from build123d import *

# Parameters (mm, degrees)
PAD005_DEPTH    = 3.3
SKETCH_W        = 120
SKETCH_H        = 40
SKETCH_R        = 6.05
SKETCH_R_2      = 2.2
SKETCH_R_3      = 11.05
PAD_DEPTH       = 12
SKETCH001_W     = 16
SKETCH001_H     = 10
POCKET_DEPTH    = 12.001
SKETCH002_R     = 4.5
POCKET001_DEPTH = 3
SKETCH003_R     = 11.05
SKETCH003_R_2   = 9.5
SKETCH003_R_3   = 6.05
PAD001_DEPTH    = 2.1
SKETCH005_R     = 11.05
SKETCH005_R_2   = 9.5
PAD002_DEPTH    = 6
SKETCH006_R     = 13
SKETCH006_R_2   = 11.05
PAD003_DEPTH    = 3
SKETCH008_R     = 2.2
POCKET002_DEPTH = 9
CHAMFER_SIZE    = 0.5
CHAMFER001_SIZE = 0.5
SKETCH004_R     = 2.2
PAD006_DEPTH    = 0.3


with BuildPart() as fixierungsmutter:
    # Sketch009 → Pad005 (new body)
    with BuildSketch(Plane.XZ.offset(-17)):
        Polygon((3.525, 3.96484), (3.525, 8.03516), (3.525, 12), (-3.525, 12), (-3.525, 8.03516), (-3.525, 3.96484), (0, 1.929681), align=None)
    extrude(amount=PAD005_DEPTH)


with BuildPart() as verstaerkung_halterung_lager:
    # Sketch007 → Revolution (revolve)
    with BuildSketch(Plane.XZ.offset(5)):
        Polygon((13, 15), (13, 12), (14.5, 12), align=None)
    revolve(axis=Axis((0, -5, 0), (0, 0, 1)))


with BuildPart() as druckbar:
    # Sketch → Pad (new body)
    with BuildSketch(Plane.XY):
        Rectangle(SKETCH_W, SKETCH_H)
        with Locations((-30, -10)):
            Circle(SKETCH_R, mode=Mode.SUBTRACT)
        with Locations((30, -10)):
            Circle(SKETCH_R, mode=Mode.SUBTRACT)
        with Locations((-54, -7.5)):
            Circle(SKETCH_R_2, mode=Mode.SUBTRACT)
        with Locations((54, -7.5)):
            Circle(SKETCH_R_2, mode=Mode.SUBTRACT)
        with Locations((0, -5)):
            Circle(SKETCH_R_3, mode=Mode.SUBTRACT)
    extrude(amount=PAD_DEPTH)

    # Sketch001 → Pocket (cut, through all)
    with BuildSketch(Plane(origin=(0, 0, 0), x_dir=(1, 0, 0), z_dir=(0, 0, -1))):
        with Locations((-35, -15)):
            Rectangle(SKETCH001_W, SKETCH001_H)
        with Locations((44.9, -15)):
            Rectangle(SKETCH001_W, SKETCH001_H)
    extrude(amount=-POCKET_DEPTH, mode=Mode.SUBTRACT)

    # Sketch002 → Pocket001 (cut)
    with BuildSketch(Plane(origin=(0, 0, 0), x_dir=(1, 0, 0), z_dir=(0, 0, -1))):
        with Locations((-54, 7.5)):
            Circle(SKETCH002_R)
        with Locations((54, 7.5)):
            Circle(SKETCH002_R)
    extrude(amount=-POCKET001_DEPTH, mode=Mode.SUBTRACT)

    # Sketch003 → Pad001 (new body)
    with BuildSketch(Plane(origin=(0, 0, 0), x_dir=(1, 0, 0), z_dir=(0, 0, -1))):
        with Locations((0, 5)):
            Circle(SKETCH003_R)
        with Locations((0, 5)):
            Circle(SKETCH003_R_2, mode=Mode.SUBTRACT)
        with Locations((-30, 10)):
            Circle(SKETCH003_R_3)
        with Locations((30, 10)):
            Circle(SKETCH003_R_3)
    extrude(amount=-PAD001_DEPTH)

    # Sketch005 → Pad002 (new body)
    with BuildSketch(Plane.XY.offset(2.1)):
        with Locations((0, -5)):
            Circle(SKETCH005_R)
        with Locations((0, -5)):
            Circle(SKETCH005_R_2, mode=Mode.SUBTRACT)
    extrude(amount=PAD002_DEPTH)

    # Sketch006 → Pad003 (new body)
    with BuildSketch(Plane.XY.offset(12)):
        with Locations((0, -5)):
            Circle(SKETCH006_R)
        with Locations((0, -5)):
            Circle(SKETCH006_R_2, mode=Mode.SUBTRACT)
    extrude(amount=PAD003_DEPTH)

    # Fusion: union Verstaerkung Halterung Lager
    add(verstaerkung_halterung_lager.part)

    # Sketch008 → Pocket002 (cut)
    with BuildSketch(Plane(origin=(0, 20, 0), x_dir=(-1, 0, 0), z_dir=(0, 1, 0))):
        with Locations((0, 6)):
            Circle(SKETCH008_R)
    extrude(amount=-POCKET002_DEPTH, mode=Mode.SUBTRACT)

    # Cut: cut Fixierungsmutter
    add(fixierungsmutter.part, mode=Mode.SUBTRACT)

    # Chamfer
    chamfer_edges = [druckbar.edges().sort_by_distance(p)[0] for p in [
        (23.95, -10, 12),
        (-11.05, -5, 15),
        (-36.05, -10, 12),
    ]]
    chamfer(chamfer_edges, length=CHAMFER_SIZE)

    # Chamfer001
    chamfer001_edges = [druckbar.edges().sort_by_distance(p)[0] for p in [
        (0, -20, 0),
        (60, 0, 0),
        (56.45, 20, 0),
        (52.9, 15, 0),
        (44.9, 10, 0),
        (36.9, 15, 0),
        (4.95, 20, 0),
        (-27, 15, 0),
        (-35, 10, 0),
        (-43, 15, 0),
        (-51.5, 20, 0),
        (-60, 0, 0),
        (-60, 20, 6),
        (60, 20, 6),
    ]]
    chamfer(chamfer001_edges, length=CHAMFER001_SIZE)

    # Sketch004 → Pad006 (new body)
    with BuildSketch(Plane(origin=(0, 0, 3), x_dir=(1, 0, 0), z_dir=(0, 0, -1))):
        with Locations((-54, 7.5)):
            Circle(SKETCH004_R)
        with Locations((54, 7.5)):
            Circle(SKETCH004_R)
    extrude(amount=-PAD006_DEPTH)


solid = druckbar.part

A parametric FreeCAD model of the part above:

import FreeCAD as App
import Part
import Sketcher

V = App.Vector
Q = App.Units.Quantity


def edges_at(feature, points):
    """Names of the edges that pass closest to the given points."""
    edges = feature.Shape.Edges
    near = lambda p: min(range(len(edges)), key=lambda i: edges[i].distToShape(Part.Vertex(*p))[0])
    return sorted({f"Edge{near(p) + 1}" for p in points})

doc = App.newDocument("Part")
params = doc.addObject("Spreadsheet::Sheet", "Params")
for row, (alias, value) in enumerate([
    ("sketch1_width", "7.05 mm"),
    ("pad1_length", "3.3 mm"),
    ("sketch2_height", "3 mm"),
    ("sketch2_width", "1.5 mm"),
    ("revolution_angle", "360 deg"),
    ("sketch3_diameter", "12.1 mm"),
    ("sketch3_diameter2", "4.4 mm"),
    ("sketch3_diameter3", "22.1 mm"),
    ("sketch3_width", "120 mm"),
    ("sketch3_height", "40 mm"),
    ("pad2_length", "12 mm"),
    ("sketch4_width", "16 mm"),
    ("sketch4_height", "10 mm"),
    ("sketch5_diameter", "9 mm"),
    ("pocket2_length", "3 mm"),
    ("sketch6_diameter", "19 mm"),
    ("sketch6_diameter2", "22.1 mm"),
    ("sketch6_diameter3", "12.1 mm"),
    ("pad3_length", "2.1 mm"),
    ("sketch7_diameter", "19 mm"),
    ("sketch7_diameter2", "22.1 mm"),
    ("pad4_length", "6 mm"),
    ("sketch8_diameter", "26 mm"),
    ("sketch8_diameter2", "22.1 mm"),
    ("pad5_length", "3 mm"),
    ("sketch9_diameter", "4.4 mm"),
    ("pocket3_length", "9 mm"),
    ("chamfer_size", "0.5 mm"),
    ("chamfer2_size", "0.5 mm"),
    ("sketch10_diameter", "4.4 mm"),
    ("pad6_length", "0.3 mm"),
], start=1):
    params.set(f"A{row}", alias)
    params.set(f"B{row}", "=" + value)
    params.setAlias(f"B{row}", alias)

body = doc.addObject("PartDesign::Body", "Body")

# Sketch on XZ plane
sketch1 = body.newObject("Sketcher::SketchObject", "Sketch")
sketch1.AttachmentSupport = (doc.getObject("XZ_Plane"), [""])
sketch1.MapMode = "FlatFace"
sketch1.AttachmentOffset = App.Placement(V(0, 0, -17), App.Rotation())
sketch1.addGeometry([
    Part.LineSegment(V(3.525, 3.96484, 0), V(3.525, 12, 0)),  # 0
    Part.LineSegment(V(3.525, 12, 0), V(-3.525, 12, 0)),  # 1
    Part.LineSegment(V(-3.525, 12, 0), V(-3.525, 3.96484, 0)),  # 2
    Part.LineSegment(V(-3.525, 3.96484, 0), V(0, 1.929681, 0)),  # 3
    Part.LineSegment(V(0, 1.929681, 0), V(3.525, 3.96484, 0)),  # 4
], False)
sketch1.addConstraint([
    Sketcher.Constraint("Coincident", 0, 2, 1, 1),
    Sketcher.Constraint("Coincident", 1, 2, 2, 1),
    Sketcher.Constraint("Coincident", 2, 2, 3, 1),
    Sketcher.Constraint("Coincident", 3, 2, 4, 1),
    Sketcher.Constraint("Coincident", 4, 2, 0, 1),
    Sketcher.Constraint("Vertical", 0),
    Sketcher.Constraint("Horizontal", 1),
    Sketcher.Constraint("Vertical", 2),
    Sketcher.Constraint("Symmetric", 2, 2, 4, 2, -2),
    Sketcher.Constraint("PointOnObject", 3, 2, -2),
    Sketcher.Constraint("Angle", 3, Q("-29.999991 deg")),
    Sketcher.Constraint("DistanceY", -1, 1, 0, 2, 12.0),
    Sketcher.Constraint("DistanceX", 1, 2, 1, 1, 7.05),
    Sketcher.Constraint("DistanceY", 0, 1, 0, 2, 8.03516),
])
sketch1.setExpression("Constraints[12]", "Params.sketch1_width")
pad1 = body.newObject("PartDesign::Pad", "Pad")
pad1.Profile = sketch1
pad1.setExpression("Length", "Params.pad1_length")
body2 = doc.addObject("PartDesign::Body", "Body001")

# Sketch on XZ plane
sketch2 = body2.newObject("Sketcher::SketchObject", "Sketch001")
sketch2.AttachmentSupport = (doc.getObject("XZ_Plane001"), [""])
sketch2.MapMode = "FlatFace"
sketch2.AttachmentOffset = App.Placement(V(0, 0, 5), App.Rotation())
sketch2.addGeometry([
    Part.LineSegment(V(13, 15, 0), V(13, 12, 0)),
    Part.LineSegment(V(13, 12, 0), V(14.5, 12, 0)),
    Part.LineSegment(V(14.5, 12, 0), V(13, 15, 0)),
], False)
sketch2.addConstraint([
    Sketcher.Constraint("Coincident", 0, 2, 1, 1),
    Sketcher.Constraint("Coincident", 1, 2, 2, 1),
    Sketcher.Constraint("Coincident", 2, 2, 0, 1),
    Sketcher.Constraint("Vertical", 0),
    Sketcher.Constraint("Horizontal", 1),
    Sketcher.Constraint("DistanceY", 0, 2, 0, 1, 3.0),
    Sketcher.Constraint("DistanceX", 1, 1, 1, 2, 1.5),
    Sketcher.Constraint("DistanceX", -1, 1, 0, 2, 13.0),
    Sketcher.Constraint("DistanceY", -1, 1, 0, 2, 12.0),
])
sketch2.setExpression("Constraints[5]", "Params.sketch2_height")
sketch2.setExpression("Constraints[6]", "Params.sketch2_width")
revolution = body2.newObject("PartDesign::Revolution", "Revolution")
revolution.Profile = sketch2
revolution.ReferenceAxis = (sketch2, ["V_Axis"])
revolution.setExpression("Angle", "Params.revolution_angle")
body3 = doc.addObject("PartDesign::Body", "Body002")

# Sketch on XY plane
sketch3 = body3.newObject("Sketcher::SketchObject", "Sketch002")
sketch3.AttachmentSupport = (doc.getObject("XY_Plane002"), [""])
sketch3.MapMode = "FlatFace"
sketch3.addGeometry([
    Part.LineSegment(V(-60, 20, 0), V(-60, -20, 0)),  # 0
    Part.LineSegment(V(-60, -20, 0), V(60, -20, 0)),  # 1
    Part.LineSegment(V(60, -20, 0), V(60, 20, 0)),  # 2
    Part.LineSegment(V(60, 20, 0), V(-60, 20, 0)),  # 3
    Part.Circle(V(-30, -10, 0), V(0, 0, 1), 6.05),  # 4
    Part.Circle(V(-54, -7.5, 0), V(0, 0, 1), 2.2),  # 5
    Part.Circle(V(30, -10, 0), V(0, 0, 1), 6.05),  # 6
    Part.Circle(V(54, -7.5, 0), V(0, 0, 1), 2.2),  # 7
    Part.Circle(V(0, -5, 0), V(0, 0, 1), 11.05),  # 8
], False)
sketch3.addConstraint([
    Sketcher.Constraint("Coincident", 0, 2, 1, 1),
    Sketcher.Constraint("Coincident", 1, 2, 2, 1),
    Sketcher.Constraint("Coincident", 2, 2, 3, 1),
    Sketcher.Constraint("Coincident", 3, 2, 0, 1),
    Sketcher.Constraint("Vertical", 0),
    Sketcher.Constraint("Horizontal", 1),
    Sketcher.Constraint("Vertical", 2),
    Sketcher.Constraint("Horizontal", 3),
    Sketcher.Constraint("Equal", 4, 6),
    Sketcher.Constraint("Equal", 5, 7),
    Sketcher.Constraint("Symmetric", 0, 2, 2, 2, -1, 1),
    Sketcher.Constraint("Symmetric", 4, 3, 6, 3, -2),
    Sketcher.Constraint("Symmetric", 5, 3, 7, 3, -2),
    Sketcher.Constraint("PointOnObject", 8, 3, -2),
    Sketcher.Constraint("Diameter", 4, 12.1),
    Sketcher.Constraint("Diameter", 5, 4.4),
    Sketcher.Constraint("Diameter", 8, 22.1),
    Sketcher.Constraint("DistanceX", 1, 1, 1, 2, 120.0),
    Sketcher.Constraint("DistanceY", 0, 2, 0, 1, 40.0),
    Sketcher.Constraint("DistanceX", 4, 3, -1, 1, 30.0),
    Sketcher.Constraint("DistanceY", 4, 3, -1, 1, 10.0),
    Sketcher.Constraint("DistanceX", 5, 3, -1, 1, 54.0),
    Sketcher.Constraint("DistanceY", 8, 3, -1, 1, 5.0),
    Sketcher.Constraint("DistanceY", 5, 3, -1, 1, 7.5),
])
sketch3.setExpression("Constraints[14]", "Params.sketch3_diameter")
sketch3.setExpression("Constraints[15]", "Params.sketch3_diameter2")
sketch3.setExpression("Constraints[16]", "Params.sketch3_diameter3")
sketch3.setExpression("Constraints[17]", "Params.sketch3_width")
sketch3.setExpression("Constraints[18]", "Params.sketch3_height")
pad2 = body3.newObject("PartDesign::Pad", "Pad001")
pad2.Profile = sketch3
pad2.setExpression("Length", "Params.pad2_length")

# Sketch on XY plane
sketch4 = body3.newObject("Sketcher::SketchObject", "Sketch003")
sketch4.AttachmentSupport = (doc.getObject("XY_Plane002"), [""])
sketch4.MapMode = "FlatFace"
sketch4.addGeometry([
    Part.LineSegment(V(-43, 10, 0), V(-43, 20, 0)),  # 0
    Part.LineSegment(V(-43, 20, 0), V(-27, 20, 0)),  # 1
    Part.LineSegment(V(-27, 20, 0), V(-27, 10, 0)),  # 2
    Part.LineSegment(V(-27, 10, 0), V(-43, 10, 0)),  # 3
    Part.LineSegment(V(36.9, 10, 0), V(36.9, 20, 0)),  # 4
    Part.LineSegment(V(36.9, 20, 0), V(52.9, 20, 0)),  # 5
    Part.LineSegment(V(52.9, 20, 0), V(52.9, 10, 0)),  # 6
    Part.LineSegment(V(52.9, 10, 0), V(36.9, 10, 0)),  # 7
], False)
sketch4.addConstraint([
    Sketcher.Constraint("Coincident", 0, 2, 1, 1),
    Sketcher.Constraint("Coincident", 1, 2, 2, 1),
    Sketcher.Constraint("Coincident", 2, 2, 3, 1),
    Sketcher.Constraint("Coincident", 3, 2, 0, 1),
    Sketcher.Constraint("Coincident", 4, 2, 5, 1),
    Sketcher.Constraint("Coincident", 5, 2, 6, 1),
    Sketcher.Constraint("Coincident", 6, 2, 7, 1),
    Sketcher.Constraint("Coincident", 7, 2, 4, 1),
    Sketcher.Constraint("Vertical", 0),
    Sketcher.Constraint("Horizontal", 1),
    Sketcher.Constraint("Vertical", 2),
    Sketcher.Constraint("Horizontal", 3),
    Sketcher.Constraint("Vertical", 4),
    Sketcher.Constraint("Horizontal", 5),
    Sketcher.Constraint("Vertical", 6),
    Sketcher.Constraint("Horizontal", 7),
    Sketcher.Constraint("Horizontal", 1, 2, 4, 2),
    Sketcher.Constraint("Horizontal", 3, 2, 6, 2),
    Sketcher.Constraint("Equal", 3, 5),
    Sketcher.Constraint("DistanceX", 1, 1, 1, 2, 16.0),
    Sketcher.Constraint("DistanceY", 0, 1, 0, 2, 10.0),
    Sketcher.Constraint("DistanceX", 0, 2, -1, 1, 43.0),
    Sketcher.Constraint("DistanceY", -1, 1, 0, 2, 20.0),
    Sketcher.Constraint("DistanceX", -1, 1, 4, 2, 36.9),
])
sketch4.setExpression("Constraints[19]", "Params.sketch4_width")
sketch4.setExpression("Constraints[20]", "Params.sketch4_height")
pocket1 = body3.newObject("PartDesign::Pocket", "Pocket")
pocket1.Profile = sketch4
pocket1.Type = "ThroughAll"
pocket1.Reversed = True

# Sketch on XY plane
sketch5 = body3.newObject("Sketcher::SketchObject", "Sketch004")
sketch5.AttachmentSupport = (doc.getObject("XY_Plane002"), [""])
sketch5.MapMode = "FlatFace"
sketch5.addGeometry([
    Part.Circle(V(-54, -7.5, 0), V(0, 0, 1), 4.5),
    Part.Circle(V(54, -7.5, 0), V(0, 0, 1), 4.5),
], False)
sketch5.addConstraint([
    Sketcher.Constraint("Equal", 0, 1),
    Sketcher.Constraint("Symmetric", 0, 3, 1, 3, -2),
    Sketcher.Constraint("Diameter", 0, 9.0),
    Sketcher.Constraint("DistanceX", 0, 3, -1, 1, 54.0),
    Sketcher.Constraint("DistanceY", 0, 3, -1, 1, 7.5),
])
sketch5.setExpression("Constraints[2]", "Params.sketch5_diameter")
pocket2 = body3.newObject("PartDesign::Pocket", "Pocket001")
pocket2.Profile = sketch5
pocket2.setExpression("Length", "Params.pocket2_length")
pocket2.Reversed = True

# Sketch on XY plane
sketch6 = body3.newObject("Sketcher::SketchObject", "Sketch005")
sketch6.AttachmentSupport = (doc.getObject("XY_Plane002"), [""])
sketch6.MapMode = "FlatFace"
sketch6.addGeometry([
    Part.Circle(V(0, -5, 0), V(0, 0, 1), 11.05),
    Part.Circle(V(0, -5, 0), V(0, 0, 1), 9.5),
    Part.Circle(V(-30, -10, 0), V(0, 0, 1), 6.05),
    Part.Circle(V(30, -10, 0), V(0, 0, 1), 6.05),
], False)
sketch6.addConstraint([
    Sketcher.Constraint("Coincident", 1, 3, 0, 3),
    Sketcher.Constraint("Equal", 2, 3),
    Sketcher.Constraint("Symmetric", 2, 3, 3, 3, -2),
    Sketcher.Constraint("PointOnObject", 0, 3, -2),
    Sketcher.Constraint("Diameter", 1, 19.0),
    Sketcher.Constraint("Diameter", 0, 22.1),
    Sketcher.Constraint("Diameter", 2, 12.1),
    Sketcher.Constraint("DistanceY", 0, 3, -1, 1, 5.0),
    Sketcher.Constraint("DistanceX", 2, 3, -1, 1, 30.0),
    Sketcher.Constraint("DistanceY", 2, 3, -1, 1, 10.0),
])
sketch6.setExpression("Constraints[4]", "Params.sketch6_diameter")
sketch6.setExpression("Constraints[5]", "Params.sketch6_diameter2")
sketch6.setExpression("Constraints[6]", "Params.sketch6_diameter3")
pad3 = body3.newObject("PartDesign::Pad", "Pad002")
pad3.Profile = sketch6
pad3.setExpression("Length", "Params.pad3_length")

# Sketch on XY plane
sketch7 = body3.newObject("Sketcher::SketchObject", "Sketch006")
sketch7.AttachmentSupport = (doc.getObject("XY_Plane002"), [""])
sketch7.MapMode = "FlatFace"
sketch7.AttachmentOffset = App.Placement(V(0, 0, 2.1), App.Rotation())
sketch7.addGeometry([
    Part.Circle(V(0, -5, 0), V(0, 0, 1), 11.05),
    Part.Circle(V(0, -5, 0), V(0, 0, 1), 9.5),
], False)
sketch7.addConstraint([
    Sketcher.Constraint("Coincident", 1, 3, 0, 3),
    Sketcher.Constraint("PointOnObject", 0, 3, -2),
    Sketcher.Constraint("Diameter", 1, 19.0),
    Sketcher.Constraint("Diameter", 0, 22.1),
    Sketcher.Constraint("DistanceY", 0, 3, -1, 1, 5.0),
])
sketch7.setExpression("Constraints[2]", "Params.sketch7_diameter")
sketch7.setExpression("Constraints[3]", "Params.sketch7_diameter2")
pad4 = body3.newObject("PartDesign::Pad", "Pad003")
pad4.Profile = sketch7
pad4.setExpression("Length", "Params.pad4_length")

# Sketch on XY plane
sketch8 = body3.newObject("Sketcher::SketchObject", "Sketch007")
sketch8.AttachmentSupport = (doc.getObject("XY_Plane002"), [""])
sketch8.MapMode = "FlatFace"
sketch8.AttachmentOffset = App.Placement(V(0, 0, 12), App.Rotation())
sketch8.addGeometry([
    Part.Circle(V(0, -5, 0), V(0, 0, 1), 13),
    Part.Circle(V(0, -5, 0), V(0, 0, 1), 11.05),
], False)
sketch8.addConstraint([
    Sketcher.Constraint("Coincident", 1, 3, 0, 3),
    Sketcher.Constraint("PointOnObject", 0, 3, -2),
    Sketcher.Constraint("Diameter", 0, 26.0),
    Sketcher.Constraint("Diameter", 1, 22.1),
    Sketcher.Constraint("DistanceY", 0, 3, -1, 1, 5.0),
])
sketch8.setExpression("Constraints[2]", "Params.sketch8_diameter")
sketch8.setExpression("Constraints[3]", "Params.sketch8_diameter2")
pad5 = body3.newObject("PartDesign::Pad", "Pad004")
pad5.Profile = sketch8
pad5.setExpression("Length", "Params.pad5_length")
doc.recompute()

boolean = body3.newObject("PartDesign::Boolean", "Boolean")
boolean.Type = "Fuse"
boolean.addObjects([body2])

# Sketch on XZ plane
sketch9 = body3.newObject("Sketcher::SketchObject", "Sketch008")
sketch9.AttachmentSupport = (doc.getObject("XZ_Plane002"), [""])
sketch9.MapMode = "FlatFace"
sketch9.AttachmentOffset = App.Placement(V(0, 0, -20), App.Rotation())
sketch9.addGeometry(Part.Circle(V(0, 6, 0), V(0, 0, 1), 2.2), False)
sketch9.addConstraint([
    Sketcher.Constraint("PointOnObject", 0, 3, -2),
    Sketcher.Constraint("Diameter", 0, 4.4),
    Sketcher.Constraint("DistanceY", -1, 1, 0, 3, 6.0),
])
sketch9.setExpression("Constraints[1]", "Params.sketch9_diameter")
pocket3 = body3.newObject("PartDesign::Pocket", "Pocket002")
pocket3.Profile = sketch9
pocket3.setExpression("Length", "Params.pocket3_length")
pocket3.Reversed = True
doc.recompute()

boolean2 = body3.newObject("PartDesign::Boolean", "Boolean001")
boolean2.Type = "Cut"
boolean2.addObjects([body])
doc.recompute()

chamfer = body3.newObject("PartDesign::Chamfer", "Chamfer")
chamfer.Base = (boolean2, edges_at(boolean2, [(23.95, -10, 12), (-11.05, -5, 15), (-36.05, -10, 12)]))
chamfer.setExpression("Size", "Params.chamfer_size")
doc.recompute()

chamfer2 = body3.newObject("PartDesign::Chamfer", "Chamfer001")
chamfer2.Base = (chamfer, edges_at(chamfer, [
    (0, -20, 0),
    (60, 0, 0),
    (56.45, 20, 0),
    (52.9, 15, 0),
    (44.9, 10, 0),
    (36.9, 15, 0),
    (4.95, 20, 0),
    (-27, 15, 0),
    (-35, 10, 0),
    (-43, 15, 0),
    (-51.5, 20, 0),
    (-60, 0, 0),
    (-60, 20, 6),
    (60, 20, 6),
]))
chamfer2.setExpression("Size", "Params.chamfer2_size")

# Sketch on XY plane
sketch10 = body3.newObject("Sketcher::SketchObject", "Sketch009")
sketch10.AttachmentSupport = (doc.getObject("XY_Plane002"), [""])
sketch10.MapMode = "FlatFace"
sketch10.AttachmentOffset = App.Placement(V(0, 0, 3), App.Rotation())
sketch10.addGeometry([
    Part.Circle(V(-54, -7.5, 0), V(0, 0, 1), 2.2),
    Part.Circle(V(54, -7.5, 0), V(0, 0, 1), 2.2),
], False)
sketch10.addConstraint([
    Sketcher.Constraint("Equal", 0, 1),
    Sketcher.Constraint("Symmetric", 0, 3, 1, 3, -2),
    Sketcher.Constraint("Diameter", 0, 4.4),
    Sketcher.Constraint("DistanceX", 0, 3, -1, 1, 54.0),
    Sketcher.Constraint("DistanceY", 0, 3, -1, 1, 7.5),
])
sketch10.setExpression("Constraints[2]", "Params.sketch10_diameter")
pad6 = body3.newObject("PartDesign::Pad", "Pad005")
pad6.Profile = sketch10
pad6.setExpression("Length", "Params.pad6_length")

doc.recompute()
